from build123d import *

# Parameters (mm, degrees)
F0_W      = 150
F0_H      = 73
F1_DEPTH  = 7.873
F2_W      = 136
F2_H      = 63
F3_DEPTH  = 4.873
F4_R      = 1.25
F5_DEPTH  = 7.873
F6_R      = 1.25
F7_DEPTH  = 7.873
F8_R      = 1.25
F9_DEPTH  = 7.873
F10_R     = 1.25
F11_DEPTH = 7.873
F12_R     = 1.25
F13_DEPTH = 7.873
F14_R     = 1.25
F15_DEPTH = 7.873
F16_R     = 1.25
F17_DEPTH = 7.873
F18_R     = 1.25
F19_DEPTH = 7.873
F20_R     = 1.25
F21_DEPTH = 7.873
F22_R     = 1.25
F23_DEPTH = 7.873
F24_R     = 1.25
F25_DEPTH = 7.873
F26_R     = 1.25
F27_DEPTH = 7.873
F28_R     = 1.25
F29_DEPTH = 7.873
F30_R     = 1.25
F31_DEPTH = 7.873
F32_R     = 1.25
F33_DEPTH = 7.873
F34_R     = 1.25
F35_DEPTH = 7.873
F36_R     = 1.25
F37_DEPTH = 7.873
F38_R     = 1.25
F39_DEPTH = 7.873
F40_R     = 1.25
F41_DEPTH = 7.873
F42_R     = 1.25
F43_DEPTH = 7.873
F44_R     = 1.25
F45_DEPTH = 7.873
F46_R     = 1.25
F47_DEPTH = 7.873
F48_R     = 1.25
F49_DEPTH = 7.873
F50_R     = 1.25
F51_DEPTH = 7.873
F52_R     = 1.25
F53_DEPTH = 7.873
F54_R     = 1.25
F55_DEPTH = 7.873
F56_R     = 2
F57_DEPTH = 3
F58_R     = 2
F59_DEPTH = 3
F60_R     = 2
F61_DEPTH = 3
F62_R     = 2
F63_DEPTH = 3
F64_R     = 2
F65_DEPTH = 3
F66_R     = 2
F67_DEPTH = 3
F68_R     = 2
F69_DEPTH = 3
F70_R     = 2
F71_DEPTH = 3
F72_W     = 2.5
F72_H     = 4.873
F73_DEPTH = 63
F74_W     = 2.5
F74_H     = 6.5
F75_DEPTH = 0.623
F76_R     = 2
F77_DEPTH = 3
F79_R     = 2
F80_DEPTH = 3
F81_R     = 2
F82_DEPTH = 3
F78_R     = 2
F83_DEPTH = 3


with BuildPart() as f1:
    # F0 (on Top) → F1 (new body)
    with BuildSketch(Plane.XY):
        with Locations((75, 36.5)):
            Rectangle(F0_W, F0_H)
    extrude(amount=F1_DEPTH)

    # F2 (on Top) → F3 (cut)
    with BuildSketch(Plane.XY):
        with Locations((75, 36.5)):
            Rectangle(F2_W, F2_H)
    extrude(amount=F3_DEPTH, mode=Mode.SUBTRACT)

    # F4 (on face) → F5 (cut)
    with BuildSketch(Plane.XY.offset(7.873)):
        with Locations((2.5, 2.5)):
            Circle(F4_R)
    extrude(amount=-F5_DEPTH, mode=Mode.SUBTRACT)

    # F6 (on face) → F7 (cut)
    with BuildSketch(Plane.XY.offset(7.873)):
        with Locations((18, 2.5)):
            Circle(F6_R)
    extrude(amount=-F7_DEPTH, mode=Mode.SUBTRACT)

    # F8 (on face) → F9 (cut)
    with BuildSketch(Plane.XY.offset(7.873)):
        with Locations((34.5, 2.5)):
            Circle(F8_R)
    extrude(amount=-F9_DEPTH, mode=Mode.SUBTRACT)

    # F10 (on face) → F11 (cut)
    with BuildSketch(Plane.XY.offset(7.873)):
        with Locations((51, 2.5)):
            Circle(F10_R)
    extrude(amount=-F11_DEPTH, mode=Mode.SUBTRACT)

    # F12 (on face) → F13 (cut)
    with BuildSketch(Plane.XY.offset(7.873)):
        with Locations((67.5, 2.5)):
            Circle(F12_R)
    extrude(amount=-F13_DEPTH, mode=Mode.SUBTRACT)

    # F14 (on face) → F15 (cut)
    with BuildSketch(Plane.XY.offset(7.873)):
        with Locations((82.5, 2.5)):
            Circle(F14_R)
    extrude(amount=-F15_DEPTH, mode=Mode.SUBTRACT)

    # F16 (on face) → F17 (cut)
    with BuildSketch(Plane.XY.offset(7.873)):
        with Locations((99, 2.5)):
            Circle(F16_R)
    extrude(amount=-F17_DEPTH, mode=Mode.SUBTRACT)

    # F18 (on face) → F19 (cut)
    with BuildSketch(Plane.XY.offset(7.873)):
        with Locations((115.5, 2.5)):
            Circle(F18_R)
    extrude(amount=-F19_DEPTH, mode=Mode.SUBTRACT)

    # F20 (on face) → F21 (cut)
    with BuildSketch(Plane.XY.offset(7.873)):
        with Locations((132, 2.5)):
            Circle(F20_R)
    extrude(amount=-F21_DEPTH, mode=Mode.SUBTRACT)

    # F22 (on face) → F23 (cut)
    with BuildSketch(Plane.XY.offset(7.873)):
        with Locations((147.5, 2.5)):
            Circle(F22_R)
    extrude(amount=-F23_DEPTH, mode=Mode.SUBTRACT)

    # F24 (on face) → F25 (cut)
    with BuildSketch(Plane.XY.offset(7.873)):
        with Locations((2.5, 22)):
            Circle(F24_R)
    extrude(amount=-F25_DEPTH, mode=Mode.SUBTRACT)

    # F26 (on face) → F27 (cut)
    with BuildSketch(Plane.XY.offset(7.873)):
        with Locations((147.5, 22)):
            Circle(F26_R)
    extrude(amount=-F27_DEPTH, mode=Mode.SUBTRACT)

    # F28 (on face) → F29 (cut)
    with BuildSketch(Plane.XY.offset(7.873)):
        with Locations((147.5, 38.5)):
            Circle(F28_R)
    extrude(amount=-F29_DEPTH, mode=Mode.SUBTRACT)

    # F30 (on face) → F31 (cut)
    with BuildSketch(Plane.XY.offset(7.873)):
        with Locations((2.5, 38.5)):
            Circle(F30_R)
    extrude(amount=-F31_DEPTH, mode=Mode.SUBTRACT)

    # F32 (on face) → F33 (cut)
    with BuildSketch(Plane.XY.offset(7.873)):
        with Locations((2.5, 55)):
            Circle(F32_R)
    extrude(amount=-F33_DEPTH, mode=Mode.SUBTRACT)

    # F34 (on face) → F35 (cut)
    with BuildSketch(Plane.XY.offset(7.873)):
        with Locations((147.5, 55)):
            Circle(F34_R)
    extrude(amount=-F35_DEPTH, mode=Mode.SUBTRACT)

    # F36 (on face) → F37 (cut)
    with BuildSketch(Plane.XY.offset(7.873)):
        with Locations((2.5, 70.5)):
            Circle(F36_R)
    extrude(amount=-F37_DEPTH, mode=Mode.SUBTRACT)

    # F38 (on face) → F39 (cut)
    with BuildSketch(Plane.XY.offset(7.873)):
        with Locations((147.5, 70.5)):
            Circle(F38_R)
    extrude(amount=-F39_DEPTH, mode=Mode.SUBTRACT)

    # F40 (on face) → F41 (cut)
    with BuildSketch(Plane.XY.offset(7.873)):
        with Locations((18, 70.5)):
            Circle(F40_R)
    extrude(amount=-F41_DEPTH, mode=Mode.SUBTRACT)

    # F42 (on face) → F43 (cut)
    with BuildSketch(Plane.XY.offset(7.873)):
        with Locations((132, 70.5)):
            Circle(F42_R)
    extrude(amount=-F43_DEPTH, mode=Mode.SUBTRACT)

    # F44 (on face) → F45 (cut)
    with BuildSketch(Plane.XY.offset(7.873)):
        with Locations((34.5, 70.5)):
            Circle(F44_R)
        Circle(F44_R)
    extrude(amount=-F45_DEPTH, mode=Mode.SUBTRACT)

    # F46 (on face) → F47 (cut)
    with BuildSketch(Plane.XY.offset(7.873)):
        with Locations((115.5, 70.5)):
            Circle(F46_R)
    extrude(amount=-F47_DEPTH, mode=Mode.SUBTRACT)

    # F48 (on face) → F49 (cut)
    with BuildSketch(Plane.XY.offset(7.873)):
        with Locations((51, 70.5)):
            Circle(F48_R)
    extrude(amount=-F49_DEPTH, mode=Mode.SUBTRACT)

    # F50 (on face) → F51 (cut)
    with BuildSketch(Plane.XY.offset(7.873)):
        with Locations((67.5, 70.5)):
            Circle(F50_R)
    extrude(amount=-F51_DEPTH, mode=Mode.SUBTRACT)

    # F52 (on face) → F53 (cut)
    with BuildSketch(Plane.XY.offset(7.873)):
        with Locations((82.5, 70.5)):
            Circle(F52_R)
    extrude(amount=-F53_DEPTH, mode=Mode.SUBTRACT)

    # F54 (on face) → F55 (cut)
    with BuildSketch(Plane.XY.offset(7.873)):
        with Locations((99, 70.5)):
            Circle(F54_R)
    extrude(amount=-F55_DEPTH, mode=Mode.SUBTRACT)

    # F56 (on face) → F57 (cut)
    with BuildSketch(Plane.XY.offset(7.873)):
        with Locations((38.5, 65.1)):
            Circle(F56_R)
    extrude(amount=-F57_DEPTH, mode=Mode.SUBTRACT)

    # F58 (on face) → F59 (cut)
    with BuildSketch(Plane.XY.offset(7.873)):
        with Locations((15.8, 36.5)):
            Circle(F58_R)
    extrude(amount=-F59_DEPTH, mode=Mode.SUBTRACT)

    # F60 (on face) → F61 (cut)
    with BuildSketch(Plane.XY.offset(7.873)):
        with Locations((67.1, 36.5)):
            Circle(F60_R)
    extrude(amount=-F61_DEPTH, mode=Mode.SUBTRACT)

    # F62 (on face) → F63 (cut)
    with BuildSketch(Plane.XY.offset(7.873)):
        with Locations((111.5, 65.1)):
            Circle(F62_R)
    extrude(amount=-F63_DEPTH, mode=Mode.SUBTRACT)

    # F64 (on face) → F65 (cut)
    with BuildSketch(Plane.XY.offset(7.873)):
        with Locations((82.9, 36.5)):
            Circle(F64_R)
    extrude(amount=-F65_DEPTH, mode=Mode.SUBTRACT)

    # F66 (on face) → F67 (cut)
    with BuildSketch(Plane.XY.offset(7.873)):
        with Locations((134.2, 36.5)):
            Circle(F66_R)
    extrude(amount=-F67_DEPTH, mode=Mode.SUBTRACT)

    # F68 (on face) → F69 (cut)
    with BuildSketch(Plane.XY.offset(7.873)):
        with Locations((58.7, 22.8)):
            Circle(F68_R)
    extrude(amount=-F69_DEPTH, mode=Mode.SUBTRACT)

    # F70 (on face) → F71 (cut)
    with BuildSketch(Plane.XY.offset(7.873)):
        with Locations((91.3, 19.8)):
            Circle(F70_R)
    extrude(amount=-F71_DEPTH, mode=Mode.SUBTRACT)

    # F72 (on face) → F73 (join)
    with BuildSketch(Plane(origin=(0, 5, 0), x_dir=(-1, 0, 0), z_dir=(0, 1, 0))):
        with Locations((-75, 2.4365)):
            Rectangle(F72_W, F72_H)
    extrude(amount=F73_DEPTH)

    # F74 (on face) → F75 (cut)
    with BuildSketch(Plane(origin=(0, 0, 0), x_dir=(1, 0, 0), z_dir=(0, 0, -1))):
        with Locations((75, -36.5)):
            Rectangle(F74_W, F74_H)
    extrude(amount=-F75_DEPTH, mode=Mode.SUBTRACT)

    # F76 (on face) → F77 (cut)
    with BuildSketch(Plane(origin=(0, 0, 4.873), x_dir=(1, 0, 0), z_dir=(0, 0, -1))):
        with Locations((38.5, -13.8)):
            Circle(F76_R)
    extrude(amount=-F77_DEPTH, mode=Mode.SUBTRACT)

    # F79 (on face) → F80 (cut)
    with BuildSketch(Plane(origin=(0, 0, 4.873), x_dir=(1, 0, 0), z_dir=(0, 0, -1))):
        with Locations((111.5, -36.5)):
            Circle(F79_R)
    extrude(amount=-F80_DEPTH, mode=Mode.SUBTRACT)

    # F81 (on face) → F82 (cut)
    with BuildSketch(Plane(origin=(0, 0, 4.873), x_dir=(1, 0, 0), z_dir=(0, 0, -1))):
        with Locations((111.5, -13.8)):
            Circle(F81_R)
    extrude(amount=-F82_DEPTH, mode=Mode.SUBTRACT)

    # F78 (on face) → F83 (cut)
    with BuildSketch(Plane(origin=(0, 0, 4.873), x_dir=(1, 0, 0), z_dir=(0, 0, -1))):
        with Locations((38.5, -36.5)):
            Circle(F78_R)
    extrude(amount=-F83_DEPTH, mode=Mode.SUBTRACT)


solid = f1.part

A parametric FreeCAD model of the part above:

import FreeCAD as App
import Part
import Sketcher

V = App.Vector


def add_polygon(sketch, points):
    """Adds a closed chain of lines whose ends are joined by coincident constraints."""
    first, n = sketch.GeometryCount, len(points)
    for a, b in zip(points, points[1:] + points[:1]):
        sketch.addGeometry(Part.LineSegment(App.Vector(*a, 0), App.Vector(*b, 0)), False)
    for i in range(n):
        sketch.addConstraint(Sketcher.Constraint("Coincident", first + i, 2, first + (i + 1) % n, 1))

doc = App.newDocument("Part")
body = doc.addObject("PartDesign::Body", "Body")

sketch1 = body.newObject("Sketcher::SketchObject", "Sketch")
sketch1.AttachmentSupport = (doc.getObject("XY_Plane"), [""])
sketch1.MapMode = "FlatFace"
add_polygon(sketch1, [(0, 73), (0, 0), (150, 0), (150, 73)])
sketch1.addConstraint([
    Sketcher.Constraint("Vertical", 0),
    Sketcher.Constraint("Horizontal", 1),
    Sketcher.Constraint("Vertical", 2),
    Sketcher.Constraint("Horizontal", 3),
    Sketcher.Constraint("Coincident", 0, 2, -1, 1),
    Sketcher.Constraint("DistanceX", 1, 1, 1, 2, 150.0),
    Sketcher.Constraint("DistanceY", 0, 2, 0, 1, 73.0),
])
pad1 = body.newObject("PartDesign::Pad", "Pad")
pad1.Profile = sketch1
pad1.Length = 7.873

sketch2 = body.newObject("Sketcher::SketchObject", "Sketch001")
sketch2.AttachmentSupport = (doc.getObject("XY_Plane"), [""])
sketch2.MapMode = "FlatFace"
add_polygon(sketch2, [(7, 68), (7, 5), (143, 5), (143, 68)])
sketch2.addConstraint([
    Sketcher.Constraint("Vertical", 0),
    Sketcher.Constraint("Horizontal", 1),
    Sketcher.Constraint("Vertical", 2),
    Sketcher.Constraint("Horizontal", 3),
    Sketcher.Constraint("DistanceX", 1, 1, 1, 2, 136.0),
    Sketcher.Constraint("DistanceY", 0, 2, 0, 1, 63.0),
    Sketcher.Constraint("DistanceX", -1, 1, 0, 2, 7.0),
    Sketcher.Constraint("DistanceY", -1, 1, 0, 2, 5.0),
])
pocket1 = body.newObject("PartDesign::Pocket", "Pocket")
pocket1.Profile = sketch2
pocket1.Length = 4.873
pocket1.Reversed = True

sketch3 = body.newObject("Sketcher::SketchObject", "Sketch002")
sketch3.AttachmentSupport = (doc.getObject("XY_Plane"), [""])
sketch3.MapMode = "FlatFace"
sketch3.AttachmentOffset = App.Placement(V(0, 0, 7.873), App.Rotation())
sketch3.addGeometry(Part.Circle(V(2.5, 2.5, 0), V(0, 0, 1), 1.2), False)
sketch3.addConstraint([
    Sketcher.Constraint("Diameter", 0, 2.5),
    Sketcher.Constraint("DistanceX", -1, 1, 0, 3, 2.5),
    Sketcher.Constraint("DistanceY", -1, 1, 0, 3, 2.5),
])
pocket2 = body.newObject("PartDesign::Pocket", "Pocket001")
pocket2.Profile = sketch3
pocket2.Length = 7.873

sketch4 = body.newObject("Sketcher::SketchObject", "Sketch003")
sketch4.AttachmentSupport = (doc.getObject("XY_Plane"), [""])
sketch4.MapMode = "FlatFace"
sketch4.AttachmentOffset = App.Placement(V(0, 0, 7.873), App.Rotation())
sketch4.addGeometry(Part.Circle(V(18, 2.5, 0), V(0, 0, 1), 1.2), False)
sketch4.addConstraint([
    Sketcher.Constraint("Diameter", 0, 2.5),
    Sketcher.Constraint("DistanceX", -1, 1, 0, 3, 18.0),
    Sketcher.Constraint("DistanceY", -1, 1, 0, 3, 2.5),
])
pocket3 = body.newObject("PartDesign::Pocket", "Pocket002")
pocket3.Profile = sketch4
pocket3.Length = 7.873

sketch5 = body.newObject("Sketcher::SketchObject", "Sketch004")
sketch5.AttachmentSupport = (doc.getObject("XY_Plane"), [""])
sketch5.MapMode = "FlatFace"
sketch5.AttachmentOffset = App.Placement(V(0, 0, 7.873), App.Rotation())
sketch5.addGeometry(Part.Circle(V(34.5, 2.5, 0), V(0, 0, 1), 1.2), False)
sketch5.addConstraint([
    Sketcher.Constraint("Diameter", 0, 2.5),
    Sketcher.Constraint("DistanceX", -1, 1, 0, 3, 34.5),
    Sketcher.Constraint("DistanceY", -1, 1, 0, 3, 2.5),
])
pocket4 = body.newObject("PartDesign::Pocket", "Pocket003")
pocket4.Profile = sketch5
pocket4.Length = 7.873

sketch6 = body.newObject("Sketcher::SketchObject", "Sketch005")
sketch6.AttachmentSupport = (doc.getObject("XY_Plane"), [""])
sketch6.MapMode = "FlatFace"
sketch6.AttachmentOffset = App.Placement(V(0, 0, 7.873), App.Rotation())
sketch6.addGeometry(Part.Circle(V(51, 2.5, 0), V(0, 0, 1), 1.2), False)
sketch6.addConstraint([
    Sketcher.Constraint("Diameter", 0, 2.5),
    Sketcher.Constraint("DistanceX", -1, 1, 0, 3, 51.0),
    Sketcher.Constraint("DistanceY", -1, 1, 0, 3, 2.5),
])
pocket5 = body.newObject("PartDesign::Pocket", "Pocket004")
pocket5.Profile = sketch6
pocket5.Length = 7.873

sketch7 = body.newObject("Sketcher::SketchObject", "Sketch006")
sketch7.AttachmentSupport = (doc.getObject("XY_Plane"), [""])
sketch7.MapMode = "FlatFace"
sketch7.AttachmentOffset = App.Placement(V(0, 0, 7.873), App.Rotation())
sketch7.addGeometry(Part.Circle(V(67.5, 2.5, 0), V(0, 0, 1), 1.2), False)
sketch7.addConstraint([
    Sketcher.Constraint("Diameter", 0, 2.5),
    Sketcher.Constraint("DistanceX", -1, 1, 0, 3, 67.5),
    Sketcher.Constraint("DistanceY", -1, 1, 0, 3, 2.5),
])
pocket6 = body.newObject("PartDesign::Pocket", "Pocket005")
pocket6.Profile = sketch7
pocket6.Length = 7.873

sketch8 = body.newObject("Sketcher::SketchObject", "Sketch007")
sketch8.AttachmentSupport = (doc.getObject("XY_Plane"), [""])
sketch8.MapMode = "FlatFace"
sketch8.AttachmentOffset = App.Placement(V(0, 0, 7.873), App.Rotation())
sketch8.addGeometry(Part.Circle(V(82.5, 2.5, 0), V(0, 0, 1), 1.2), False)
sketch8.addConstraint([
    Sketcher.Constraint("Diameter", 0, 2.5),
    Sketcher.Constraint("DistanceX", -1, 1, 0, 3, 82.5),
    Sketcher.Constraint("DistanceY", -1, 1, 0, 3, 2.5),
])
pocket7 = body.newObject("PartDesign::Pocket", "Pocket006")
pocket7.Profile = sketch8
pocket7.Length = 7.873

sketch9 = body.newObject("Sketcher::SketchObject", "Sketch008")
sketch9.AttachmentSupport = (doc.getObject("XY_Plane"), [""])
sketch9.MapMode = "FlatFace"
sketch9.AttachmentOffset = App.Placement(V(0, 0, 7.873), App.Rotation())
sketch9.addGeometry(Part.Circle(V(99, 2.5, 0), V(0, 0, 1), 1.2), False)
sketch9.addConstraint([
    Sketcher.Constraint("Diameter", 0, 2.5),
    Sketcher.Constraint("DistanceX", -1, 1, 0, 3, 99.0),
    Sketcher.Constraint("DistanceY", -1, 1, 0, 3, 2.5),
])
pocket8 = body.newObject("PartDesign::Pocket", "Pocket007")
pocket8.Profile = sketch9
pocket8.Length = 7.873

sketch10 = body.newObject("Sketcher::SketchObject", "Sketch009")
sketch10.AttachmentSupport = (doc.getObject("XY_Plane"), [""])
sketch10.MapMode = "FlatFace"
sketch10.AttachmentOffset = App.Placement(V(0, 0, 7.873), App.Rotation())
sketch10.addGeometry(Part.Circle(V(115.5, 2.5, 0), V(0, 0, 1), 1.2), False)
sketch10.addConstraint([
    Sketcher.Constraint("Diameter", 0, 2.5),
    Sketcher.Constraint("DistanceX", -1, 1, 0, 3, 115.5),
    Sketcher.Constraint("DistanceY", -1, 1, 0, 3, 2.5),
])
pocket9 = body.newObject("PartDesign::Pocket", "Pocket008")
pocket9.Profile = sketch10
pocket9.Length = 7.873

sketch11 = body.newObject("Sketcher::SketchObject", "Sketch010")
sketch11.AttachmentSupport = (doc.getObject("XY_Plane"), [""])
sketch11.MapMode = "FlatFace"
sketch11.AttachmentOffset = App.Placement(V(0, 0, 7.873), App.Rotation())
sketch11.addGeometry(Part.Circle(V(132, 2.5, 0), V(0, 0, 1), 1.2), False)
sketch11.addConstraint([
    Sketcher.Constraint("Diameter", 0, 2.5),
    Sketcher.Constraint("DistanceX", -1, 1, 0, 3, 132.0),
    Sketcher.Constraint("DistanceY", -1, 1, 0, 3, 2.5),
])
pocket10 = body.newObject("PartDesign::Pocket", "Pocket009")
pocket10.Profile = sketch11
pocket10.Length = 7.873

sketch12 = body.newObject("Sketcher::SketchObject", "Sketch011")
sketch12.AttachmentSupport = (doc.getObject("XY_Plane"), [""])
sketch12.MapMode = "FlatFace"
sketch12.AttachmentOffset = App.Placement(V(0, 0, 7.873), App.Rotation())
sketch12.addGeometry(Part.Circle(V(147.5, 2.5, 0), V(0, 0, 1), 1.2), False)
sketch12.addConstraint([
    Sketcher.Constraint("Diameter", 0, 2.5),
    Sketcher.Constraint("DistanceX", -1, 1, 0, 3, 147.5),
    Sketcher.Constraint("DistanceY", -1, 1, 0, 3, 2.5),
])
pocket11 = body.newObject("PartDesign::Pocket", "Pocket010")
pocket11.Profile = sketch12
pocket11.Length = 7.873

sketch13 = body.newObject("Sketcher::SketchObject", "Sketch012")
sketch13.AttachmentSupport = (doc.getObject("XY_Plane"), [""])
sketch13.MapMode = "FlatFace"
sketch13.AttachmentOffset = App.Placement(V(0, 0, 7.873), App.Rotation())
sketch13.addGeometry(Part.Circle(V(2.5, 22, 0), V(0, 0, 1), 1.2), False)
sketch13.addConstraint([
    Sketcher.Constraint("Diameter", 0, 2.5),
    Sketcher.Constraint("DistanceY", -1, 1, 0, 3, 22.0),
    Sketcher.Constraint("DistanceX", -1, 1, 0, 3, 2.5),
])
pocket12 = body.newObject("PartDesign::Pocket", "Pocket011")
pocket12.Profile = sketch13
pocket12.Length = 7.873

sketch14 = body.newObject("Sketcher::SketchObject", "Sketch013")
sketch14.AttachmentSupport = (doc.getObject("XY_Plane"), [""])
sketch14.MapMode = "FlatFace"
sketch14.AttachmentOffset = App.Placement(V(0, 0, 7.873), App.Rotation())
sketch14.addGeometry(Part.Circle(V(147.5, 22, 0), V(0, 0, 1), 1.2), False)
sketch14.addConstraint([
    Sketcher.Constraint("Diameter", 0, 2.5),
    Sketcher.Constraint("DistanceY", -1, 1, 0, 3, 22.0),
    Sketcher.Constraint("DistanceX", -1, 1, 0, 3, 147.5),
])
pocket13 = body.newObject("PartDesign::Pocket", "Pocket012")
pocket13.Profile = sketch14
pocket13.Length = 7.873

sketch15 = body.newObject("Sketcher::SketchObject", "Sketch014")
sketch15.AttachmentSupport = (doc.getObject("XY_Plane"), [""])
sketch15.MapMode = "FlatFace"
sketch15.AttachmentOffset = App.Placement(V(0, 0, 7.873), App.Rotation())
sketch15.addGeometry(Part.Circle(V(147.5, 38.5, 0), V(0, 0, 1), 1.2), False)
sketch15.addConstraint([
    Sketcher.Constraint("Diameter", 0, 2.5),
    Sketcher.Constraint("DistanceX", -1, 1, 0, 3, 147.5),
    Sketcher.Constraint("DistanceY", -1, 1, 0, 3, 38.5),
])
pocket14 = body.newObject("PartDesign::Pocket", "Pocket013")
pocket14.Profile = sketch15
pocket14.Length = 7.873

sketch16 = body.newObject("Sketcher::SketchObject", "Sketch015")
sketch16.AttachmentSupport = (doc.getObject("XY_Plane"), [""])
sketch16.MapMode = "FlatFace"
sketch16.AttachmentOffset = App.Placement(V(0, 0, 7.873), App.Rotation())
sketch16.addGeometry(Part.Circle(V(2.5, 38.5, 0), V(0, 0, 1), 1.2), False)
sketch16.addConstraint([
    Sketcher.Constraint("Diameter", 0, 2.5),
    Sketcher.Constraint("DistanceX", -1, 1, 0, 3, 2.5),
    Sketcher.Constraint("DistanceY", -1, 1, 0, 3, 38.5),
])
pocket15 = body.newObject("PartDesign::Pocket", "Pocket014")
pocket15.Profile = sketch16
pocket15.Length = 7.873

sketch17 = body.newObject("Sketcher::SketchObject", "Sketch016")
sketch17.AttachmentSupport = (doc.getObject("XY_Plane"), [""])
sketch17.MapMode = "FlatFace"
sketch17.AttachmentOffset = App.Placement(V(0, 0, 7.873), App.Rotation())
sketch17.addGeometry(Part.Circle(V(2.5, 55, 0), V(0, 0, 1), 1.2), False)
sketch17.addConstraint([
    Sketcher.Constraint("Diameter", 0, 2.5),
    Sketcher.Constraint("DistanceY", -1, 1, 0, 3, 55.0),
    Sketcher.Constraint("DistanceX", -1, 1, 0, 3, 2.5),
])
pocket16 = body.newObject("PartDesign::Pocket", "Pocket015")
pocket16.Profile = sketch17
pocket16.Length = 7.873

sketch18 = body.newObject("Sketcher::SketchObject", "Sketch017")
sketch18.AttachmentSupport = (doc.getObject("XY_Plane"), [""])
sketch18.MapMode = "FlatFace"
sketch18.AttachmentOffset = App.Placement(V(0, 0, 7.873), App.Rotation())
sketch18.addGeometry(Part.Circle(V(147.5, 55, 0), V(0, 0, 1), 1.2), False)
sketch18.addConstraint([
    Sketcher.Constraint("Diameter", 0, 2.5),
    Sketcher.Constraint("DistanceY", -1, 1, 0, 3, 55.0),
    Sketcher.Constraint("DistanceX", -1, 1, 0, 3, 147.5),
])
pocket17 = body.newObject("PartDesign::Pocket", "Pocket016")
pocket17.Profile = sketch18
pocket17.Length = 7.873

sketch19 = body.newObject("Sketcher::SketchObject", "Sketch018")
sketch19.AttachmentSupport = (doc.getObject("XY_Plane"), [""])
sketch19.MapMode = "FlatFace"
sketch19.AttachmentOffset = App.Placement(V(0, 0, 7.873), App.Rotation())
sketch19.addGeometry(Part.Circle(V(2.5, 70.5, 0), V(0, 0, 1), 1.2), False)
sketch19.addConstraint([
    Sketcher.Constraint("Diameter", 0, 2.5),
    Sketcher.Constraint("DistanceX", -1, 1, 0, 3, 2.5),
    Sketcher.Constraint("DistanceY", -1, 1, 0, 3, 70.5),
])
pocket18 = body.newObject("PartDesign::Pocket", "Pocket017")
pocket18.Profile = sketch19
pocket18.Length = 7.873

sketch20 = body.newObject("Sketcher::SketchObject", "Sketch019")
sketch20.AttachmentSupport = (doc.getObject("XY_Plane"), [""])
sketch20.MapMode = "FlatFace"
sketch20.AttachmentOffset = App.Placement(V(0, 0, 7.873), App.Rotation())
sketch20.addGeometry(Part.Circle(V(147.5, 70.5, 0), V(0, 0, 1), 1.2), False)
sketch20.addConstraint([
    Sketcher.Constraint("Diameter", 0, 2.5),
    Sketcher.Constraint("DistanceX", -1, 1, 0, 3, 147.5),
    Sketcher.Constraint("DistanceY", -1, 1, 0, 3, 70.5),
])
pocket19 = body.newObject("PartDesign::Pocket", "Pocket018")
pocket19.Profile = sketch20
pocket19.Length = 7.873

sketch21 = body.newObject("Sketcher::SketchObject", "Sketch020")
sketch21.AttachmentSupport = (doc.getObject("XY_Plane"), [""])
sketch21.MapMode = "FlatFace"
sketch21.AttachmentOffset = App.Placement(V(0, 0, 7.873), App.Rotation())
sketch21.addGeometry(Part.Circle(V(18, 70.5, 0), V(0, 0, 1), 1.2), False)
sketch21.addConstraint([
    Sketcher.Constraint("Diameter", 0, 2.5),
    Sketcher.Constraint("DistanceX", -1, 1, 0, 3, 18.0),
    Sketcher.Constraint("DistanceY", -1, 1, 0, 3, 70.5),
])
pocket20 = body.newObject("PartDesign::Pocket", "Pocket019")
pocket20.Profile = sketch21
pocket20.Length = 7.873

sketch22 = body.newObject("Sketcher::SketchObject", "Sketch021")
sketch22.AttachmentSupport = (doc.getObject("XY_Plane"), [""])
sketch22.MapMode = "FlatFace"
sketch22.AttachmentOffset = App.Placement(V(0, 0, 7.873), App.Rotation())
sketch22.addGeometry(Part.Circle(V(132, 70.5, 0), V(0, 0, 1), 1.2), False)
sketch22.addConstraint([
    Sketcher.Constraint("Diameter", 0, 2.5),
    Sketcher.Constraint("DistanceX", -1, 1, 0, 3, 132.0),
    Sketcher.Constraint("DistanceY", -1, 1, 0, 3, 70.5),
])
pocket21 = body.newObject("PartDesign::Pocket", "Pocket020")
pocket21.Profile = sketch22
pocket21.Length = 7.873

sketch23 = body.newObject("Sketcher::SketchObject", "Sketch022")
sketch23.AttachmentSupport = (doc.getObject("XY_Plane"), [""])
sketch23.MapMode = "FlatFace"
sketch23.AttachmentOffset = App.Placement(V(0, 0, 7.873), App.Rotation())
sketch23.addGeometry([
    Part.Circle(V(34.5, 70.5, 0), V(0, 0, 1), 1.2),
    Part.Circle(V(0, 0, 0), V(0, 0, 1), 1.2),
], False)
sketch23.addConstraint([
    Sketcher.Constraint("Coincident", 1, 3, -1, 1),
    Sketcher.Constraint("Equal", 0, 1),
    Sketcher.Constraint("Diameter", 0, 2.5),
    Sketcher.Constraint("DistanceX", -1, 1, 0, 3, 34.5),
    Sketcher.Constraint("DistanceY", -1, 1, 0, 3, 70.5),
])
pocket22 = body.newObject("PartDesign::Pocket", "Pocket021")
pocket22.Profile = sketch23
pocket22.Length = 7.873

sketch24 = body.newObject("Sketcher::SketchObject", "Sketch023")
sketch24.AttachmentSupport = (doc.getObject("XY_Plane"), [""])
sketch24.MapMode = "FlatFace"
sketch24.AttachmentOffset = App.Placement(V(0, 0, 7.873), App.Rotation())
sketch24.addGeometry(Part.Circle(V(115.5, 70.5, 0), V(0, 0, 1), 1.2), False)
sketch24.addConstraint([
    Sketcher.Constraint("Diameter", 0, 2.5),
    Sketcher.Constraint("DistanceX", -1, 1, 0, 3, 115.5),
    Sketcher.Constraint("DistanceY", -1, 1, 0, 3, 70.5),
])
pocket23 = body.newObject("PartDesign::Pocket", "Pocket022")
pocket23.Profile = sketch24
pocket23.Length = 7.873

sketch25 = body.newObject("Sketcher::SketchObject", "Sketch024")
sketch25.AttachmentSupport = (doc.getObject("XY_Plane"), [""])
sketch25.MapMode = "FlatFace"
sketch25.AttachmentOffset = App.Placement(V(0, 0, 7.873), App.Rotation())
sketch25.addGeometry(Part.Circle(V(51, 70.5, 0), V(0, 0, 1), 1.2), False)
sketch25.addConstraint([
    Sketcher.Constraint("Diameter", 0, 2.5),
    Sketcher.Constraint("DistanceX", -1, 1, 0, 3, 51.0),
    Sketcher.Constraint("DistanceY", -1, 1, 0, 3, 70.5),
])
pocket24 = body.newObject("PartDesign::Pocket", "Pocket023")
pocket24.Profile = sketch25
pocket24.Length = 7.873

sketch26 = body.newObject("Sketcher::SketchObject", "Sketch025")
sketch26.AttachmentSupport = (doc.getObject("XY_Plane"), [""])
sketch26.MapMode = "FlatFace"
sketch26.AttachmentOffset = App.Placement(V(0, 0, 7.873), App.Rotation())
sketch26.addGeometry(Part.Circle(V(67.5, 70.5, 0), V(0, 0, 1), 1.2), False)
sketch26.addConstraint([
    Sketcher.Constraint("Diameter", 0, 2.5),
    Sketcher.Constraint("DistanceX", -1, 1, 0, 3, 67.5),
    Sketcher.Constraint("DistanceY", -1, 1, 0, 3, 70.5),
])
pocket25 = body.newObject("PartDesign::Pocket", "Pocket024")
pocket25.Profile = sketch26
pocket25.Length = 7.873

sketch27 = body.newObject("Sketcher::SketchObject", "Sketch026")
sketch27.AttachmentSupport = (doc.getObject("XY_Plane"), [""])
sketch27.MapMode = "FlatFace"
sketch27.AttachmentOffset = App.Placement(V(0, 0, 7.873), App.Rotation())
sketch27.addGeometry(Part.Circle(V(82.5, 70.5, 0), V(0, 0, 1), 1.2), False)
sketch27.addConstraint([
    Sketcher.Constraint("Diameter", 0, 2.5),
    Sketcher.Constraint("DistanceX", -1, 1, 0, 3, 82.5),
    Sketcher.Constraint("DistanceY", -1, 1, 0, 3, 70.5),
])
pocket26 = body.newObject("PartDesign::Pocket", "Pocket025")
pocket26.Profile = sketch27
pocket26.Length = 7.873

sketch28 = body.newObject("Sketcher::SketchObject", "Sketch027")
sketch28.AttachmentSupport = (doc.getObject("XY_Plane"), [""])
sketch28.MapMode = "FlatFace"
sketch28.AttachmentOffset = App.Placement(V(0, 0, 7.873), App.Rotation())
sketch28.addGeometry(Part.Circle(V(99, 70.5, 0), V(0, 0, 1), 1.2), False)
sketch28.addConstraint([
    Sketcher.Constraint("Diameter", 0, 2.5),
    Sketcher.Constraint("DistanceX", -1, 1, 0, 3, 99.0),
    Sketcher.Constraint("DistanceY", -1, 1, 0, 3, 70.5),
])
pocket27 = body.newObject("PartDesign::Pocket", "Pocket026")
pocket27.Profile = sketch28
pocket27.Length = 7.873

sketch29 = body.newObject("Sketcher::SketchObject", "Sketch028")
sketch29.AttachmentSupport = (doc.getObject("XY_Plane"), [""])
sketch29.MapMode = "FlatFace"
sketch29.AttachmentOffset = App.Placement(V(0, 0, 7.873), App.Rotation())
sketch29.addGeometry(Part.Circle(V(38.5, 65.1, 0), V(0, 0, 1), 2), False)
sketch29.addConstraint([
    Sketcher.Constraint("Diameter", 0, 4.0),
    Sketcher.Constraint("DistanceX", -1, 1, 0, 3, 38.5),
    Sketcher.Constraint("DistanceY", -1, 1, 0, 3, 65.1),
])
pocket28 = body.newObject("PartDesign::Pocket", "Pocket027")
pocket28.Profile = sketch29
pocket28.Length = 3

sketch30 = body.newObject("Sketcher::SketchObject", "Sketch029")
sketch30.AttachmentSupport = (doc.getObject("XY_Plane"), [""])
sketch30.MapMode = "FlatFace"
sketch30.AttachmentOffset = App.Placement(V(0, 0, 7.873), App.Rotation())
sketch30.addGeometry(Part.Circle(V(15.8, 36.5, 0), V(0, 0, 1), 2), False)
sketch30.addConstraint([
    Sketcher.Constraint("Diameter", 0, 4.0),
    Sketcher.Constraint("DistanceX", -1, 1, 0, 3, 15.8),
    Sketcher.Constraint("DistanceY", -1, 1, 0, 3, 36.5),
])
pocket29 = body.newObject("PartDesign::Pocket", "Pocket028")
pocket29.Profile = sketch30
pocket29.Length = 3

sketch31 = body.newObject("Sketcher::SketchObject", "Sketch030")
sketch31.AttachmentSupport = (doc.getObject("XY_Plane"), [""])
sketch31.MapMode = "FlatFace"
sketch31.AttachmentOffset = App.Placement(V(0, 0, 7.873), App.Rotation())
sketch31.addGeometry(Part.Circle(V(67.1, 36.5, 0), V(0, 0, 1), 2), False)
sketch31.addConstraint([
    Sketcher.Constraint("Diameter", 0, 4.0),
    Sketcher.Constraint("DistanceX", -1, 1, 0, 3, 67.1),
    Sketcher.Constraint("DistanceY", -1, 1, 0, 3, 36.5),
])
pocket30 = body.newObject("PartDesign::Pocket", "Pocket029")
pocket30.Profile = sketch31
pocket30.Length = 3

sketch32 = body.newObject("Sketcher::SketchObject", "Sketch031")
sketch32.AttachmentSupport = (doc.getObject("XY_Plane"), [""])
sketch32.MapMode = "FlatFace"
sketch32.AttachmentOffset = App.Placement(V(0, 0, 7.873), App.Rotation())
sketch32.addGeometry(Part.Circle(V(111.5, 65.1, 0), V(0, 0, 1), 2), False)
sketch32.addConstraint([
    Sketcher.Constraint("Diameter", 0, 4.0),
    Sketcher.Constraint("DistanceX", -1, 1, 0, 3, 111.5),
    Sketcher.Constraint("DistanceY", -1, 1, 0, 3, 65.1),
])
pocket31 = body.newObject("PartDesign::Pocket", "Pocket030")
pocket31.Profile = sketch32
pocket31.Length = 3

sketch33 = body.newObject("Sketcher::SketchObject", "Sketch032")
sketch33.AttachmentSupport = (doc.getObject("XY_Plane"), [""])
sketch33.MapMode = "FlatFace"
sketch33.AttachmentOffset = App.Placement(V(0, 0, 7.873), App.Rotation())
sketch33.addGeometry(Part.Circle(V(82.9, 36.5, 0), V(0, 0, 1), 2), False)
sketch33.addConstraint([
    Sketcher.Constraint("Diameter", 0, 4.0),
    Sketcher.Constraint("DistanceX", -1, 1, 0, 3, 82.9),
    Sketcher.Constraint("DistanceY", -1, 1, 0, 3, 36.5),
])
pocket32 = body.newObject("PartDesign::Pocket", "Pocket031")
pocket32.Profile = sketch33
pocket32.Length = 3

sketch34 = body.newObject("Sketcher::SketchObject", "Sketch033")
sketch34.AttachmentSupport = (doc.getObject("XY_Plane"), [""])
sketch34.MapMode = "FlatFace"
sketch34.AttachmentOffset = App.Placement(V(0, 0, 7.873), App.Rotation())
sketch34.addGeometry(Part.Circle(V(134.2, 36.5, 0), V(0, 0, 1), 2), False)
sketch34.addConstraint([
    Sketcher.Constraint("Diameter", 0, 4.0),
    Sketcher.Constraint("DistanceX", -1, 1, 0, 3, 134.2),
    Sketcher.Constraint("DistanceY", -1, 1, 0, 3, 36.5),
])
pocket33 = body.newObject("PartDesign::Pocket", "Pocket032")
pocket33.Profile = sketch34
pocket33.Length = 3

sketch35 = body.newObject("Sketcher::SketchObject", "Sketch034")
sketch35.AttachmentSupport = (doc.getObject("XY_Plane"), [""])
sketch35.MapMode = "FlatFace"
sketch35.AttachmentOffset = App.Placement(V(0, 0, 7.873), App.Rotation())
sketch35.addGeometry(Part.Circle(V(58.7, 22.8, 0), V(0, 0, 1), 2), False)
sketch35.addConstraint([
    Sketcher.Constraint("Diameter", 0, 4.0),
    Sketcher.Constraint("DistanceX", -1, 1, 0, 3, 58.7),
    Sketcher.Constraint("DistanceY", -1, 1, 0, 3, 22.8),
])
pocket34 = body.newObject("PartDesign::Pocket", "Pocket033")
pocket34.Profile = sketch35
pocket34.Length = 3

sketch36 = body.newObject("Sketcher::SketchObject", "Sketch035")
sketch36.AttachmentSupport = (doc.getObject("XY_Plane"), [""])
sketch36.MapMode = "FlatFace"
sketch36.AttachmentOffset = App.Placement(V(0, 0, 7.873), App.Rotation())
sketch36.addGeometry(Part.Circle(V(91.3, 19.8, 0), V(0, 0, 1), 2), False)
sketch36.addConstraint([
    Sketcher.Constraint("Diameter", 0, 4.0),
    Sketcher.Constraint("DistanceX", -1, 1, 0, 3, 91.3),
    Sketcher.Constraint("DistanceY", -1, 1, 0, 3, 19.8),
])
pocket35 = body.newObject("PartDesign::Pocket", "Pocket034")
pocket35.Profile = sketch36
pocket35.Length = 3

sketch37 = body.newObject("Sketcher::SketchObject", "Sketch036")
sketch37.AttachmentSupport = (doc.getObject("XZ_Plane"), [""])
sketch37.MapMode = "FlatFace"
sketch37.AttachmentOffset = App.Placement(V(0, 0, -5), App.Rotation())
add_polygon(sketch37, [(76.2, 4.9), (76.2, 0), (73.8, 0), (73.8, 4.9)])
sketch37.addConstraint([
    Sketcher.Constraint("Vertical", 0),
    Sketcher.Constraint("Horizontal", 1),
    Sketcher.Constraint("Vertical", 2),
    Sketcher.Constraint("Horizontal", 3),
    Sketcher.Constraint("PointOnObject", 0, 2, -1),
    Sketcher.Constraint("DistanceX", 1, 2, 1, 1, 2.5),
    Sketcher.Constraint("DistanceY", 0, 2, 0, 1, 4.873),
    Sketcher.Constraint("DistanceX", -1, 1, 0, 2, 76.25),
])
pad2 = body.newObject("PartDesign::Pad", "Pad001")
pad2.Profile = sketch37
pad2.Length = 63
pad2.Reversed = True

sketch38 = body.newObject("Sketcher::SketchObject", "Sketch037")
sketch38.AttachmentSupport = (doc.getObject("XY_Plane"), [""])
sketch38.MapMode = "FlatFace"
add_polygon(sketch38, [(73.8, 33.2), (73.8, 39.8), (76.2, 39.8), (76.2, 33.2)])
sketch38.addConstraint([
    Sketcher.Constraint("Vertical", 0),
    Sketcher.Constraint("Horizontal", 1),
    Sketcher.Constraint("Vertical", 2),
    Sketcher.Constraint("Horizontal", 3),
    Sketcher.Constraint("DistanceX", 1, 1, 1, 2, 2.5),
    Sketcher.Constraint("DistanceY", 0, 1, 0, 2, 6.5),
    Sketcher.Constraint("DistanceX", -1, 1, 0, 2, 73.75),
    Sketcher.Constraint("DistanceY", -1, 1, 0, 2, 39.75),
])
pocket36 = body.newObject("PartDesign::Pocket", "Pocket035")
pocket36.Profile = sketch38
pocket36.Length = 0.623
pocket36.Reversed = True

sketch39 = body.newObject("Sketcher::SketchObject", "Sketch038")
sketch39.AttachmentSupport = (doc.getObject("XY_Plane"), [""])
sketch39.MapMode = "FlatFace"
sketch39.AttachmentOffset = App.Placement(V(0, 0, 4.873), App.Rotation())
sketch39.addGeometry(Part.Circle(V(38.5, 13.8, 0), V(0, 0, 1), 2), False)
sketch39.addConstraint([
    Sketcher.Constraint("Diameter", 0, 4.0),
    Sketcher.Constraint("DistanceX", -1, 1, 0, 3, 38.5),
    Sketcher.Constraint("DistanceY", -1, 1, 0, 3, 13.8),
])
pocket37 = body.newObject("PartDesign::Pocket", "Pocket036")
pocket37.Profile = sketch39
pocket37.Length = 3
pocket37.Reversed = True

sketch40 = body.newObject("Sketcher::SketchObject", "Sketch039")
sketch40.AttachmentSupport = (doc.getObject("XY_Plane"), [""])
sketch40.MapMode = "FlatFace"
sketch40.AttachmentOffset = App.Placement(V(0, 0, 4.873), App.Rotation())
sketch40.addGeometry(Part.Circle(V(111.5, 36.5, 0), V(0, 0, 1), 2), False)
sketch40.addConstraint([
    Sketcher.Constraint("Diameter", 0, 4.0),
    Sketcher.Constraint("DistanceX", -1, 1, 0, 3, 111.5),
    Sketcher.Constraint("DistanceY", -1, 1, 0, 3, 36.5),
])
pocket38 = body.newObject("PartDesign::Pocket", "Pocket037")
pocket38.Profile = sketch40
pocket38.Length = 3
pocket38.Reversed = True

sketch41 = body.newObject("Sketcher::SketchObject", "Sketch040")
sketch41.AttachmentSupport = (doc.getObject("XY_Plane"), [""])
sketch41.MapMode = "FlatFace"
sketch41.AttachmentOffset = App.Placement(V(0, 0, 4.873), App.Rotation())
sketch41.addGeometry(Part.Circle(V(111.5, 13.8, 0), V(0, 0, 1), 2), False)
sketch41.addConstraint([
    Sketcher.Constraint("Diameter", 0, 4.0),
    Sketcher.Constraint("DistanceX", -1, 1, 0, 3, 111.5),
    Sketcher.Constraint("DistanceY", -1, 1, 0, 3, 13.8),
])
pocket39 = body.newObject("PartDesign::Pocket", "Pocket038")
pocket39.Profile = sketch41
pocket39.Length = 3
pocket39.Reversed = True

sketch42 = body.newObject("Sketcher::SketchObject", "Sketch041")
sketch42.AttachmentSupport = (doc.getObject("XY_Plane"), [""])
sketch42.MapMode = "FlatFace"
sketch42.AttachmentOffset = App.Placement(V(0, 0, 4.873), App.Rotation())
sketch42.addGeometry(Part.Circle(V(38.5, 36.5, 0), V(0, 0, 1), 2), False)
sketch42.addConstraint([
    Sketcher.Constraint("Diameter", 0, 4.0),
    Sketcher.Constraint("DistanceX", -1, 1, 0, 3, 38.5),
    Sketcher.Constraint("DistanceY", -1, 1, 0, 3, 36.5),
])
pocket40 = body.newObject("PartDesign::Pocket", "Pocket039")
pocket40.Profile = sketch42
pocket40.Length = 3
pocket40.Reversed = True

doc.recompute()
